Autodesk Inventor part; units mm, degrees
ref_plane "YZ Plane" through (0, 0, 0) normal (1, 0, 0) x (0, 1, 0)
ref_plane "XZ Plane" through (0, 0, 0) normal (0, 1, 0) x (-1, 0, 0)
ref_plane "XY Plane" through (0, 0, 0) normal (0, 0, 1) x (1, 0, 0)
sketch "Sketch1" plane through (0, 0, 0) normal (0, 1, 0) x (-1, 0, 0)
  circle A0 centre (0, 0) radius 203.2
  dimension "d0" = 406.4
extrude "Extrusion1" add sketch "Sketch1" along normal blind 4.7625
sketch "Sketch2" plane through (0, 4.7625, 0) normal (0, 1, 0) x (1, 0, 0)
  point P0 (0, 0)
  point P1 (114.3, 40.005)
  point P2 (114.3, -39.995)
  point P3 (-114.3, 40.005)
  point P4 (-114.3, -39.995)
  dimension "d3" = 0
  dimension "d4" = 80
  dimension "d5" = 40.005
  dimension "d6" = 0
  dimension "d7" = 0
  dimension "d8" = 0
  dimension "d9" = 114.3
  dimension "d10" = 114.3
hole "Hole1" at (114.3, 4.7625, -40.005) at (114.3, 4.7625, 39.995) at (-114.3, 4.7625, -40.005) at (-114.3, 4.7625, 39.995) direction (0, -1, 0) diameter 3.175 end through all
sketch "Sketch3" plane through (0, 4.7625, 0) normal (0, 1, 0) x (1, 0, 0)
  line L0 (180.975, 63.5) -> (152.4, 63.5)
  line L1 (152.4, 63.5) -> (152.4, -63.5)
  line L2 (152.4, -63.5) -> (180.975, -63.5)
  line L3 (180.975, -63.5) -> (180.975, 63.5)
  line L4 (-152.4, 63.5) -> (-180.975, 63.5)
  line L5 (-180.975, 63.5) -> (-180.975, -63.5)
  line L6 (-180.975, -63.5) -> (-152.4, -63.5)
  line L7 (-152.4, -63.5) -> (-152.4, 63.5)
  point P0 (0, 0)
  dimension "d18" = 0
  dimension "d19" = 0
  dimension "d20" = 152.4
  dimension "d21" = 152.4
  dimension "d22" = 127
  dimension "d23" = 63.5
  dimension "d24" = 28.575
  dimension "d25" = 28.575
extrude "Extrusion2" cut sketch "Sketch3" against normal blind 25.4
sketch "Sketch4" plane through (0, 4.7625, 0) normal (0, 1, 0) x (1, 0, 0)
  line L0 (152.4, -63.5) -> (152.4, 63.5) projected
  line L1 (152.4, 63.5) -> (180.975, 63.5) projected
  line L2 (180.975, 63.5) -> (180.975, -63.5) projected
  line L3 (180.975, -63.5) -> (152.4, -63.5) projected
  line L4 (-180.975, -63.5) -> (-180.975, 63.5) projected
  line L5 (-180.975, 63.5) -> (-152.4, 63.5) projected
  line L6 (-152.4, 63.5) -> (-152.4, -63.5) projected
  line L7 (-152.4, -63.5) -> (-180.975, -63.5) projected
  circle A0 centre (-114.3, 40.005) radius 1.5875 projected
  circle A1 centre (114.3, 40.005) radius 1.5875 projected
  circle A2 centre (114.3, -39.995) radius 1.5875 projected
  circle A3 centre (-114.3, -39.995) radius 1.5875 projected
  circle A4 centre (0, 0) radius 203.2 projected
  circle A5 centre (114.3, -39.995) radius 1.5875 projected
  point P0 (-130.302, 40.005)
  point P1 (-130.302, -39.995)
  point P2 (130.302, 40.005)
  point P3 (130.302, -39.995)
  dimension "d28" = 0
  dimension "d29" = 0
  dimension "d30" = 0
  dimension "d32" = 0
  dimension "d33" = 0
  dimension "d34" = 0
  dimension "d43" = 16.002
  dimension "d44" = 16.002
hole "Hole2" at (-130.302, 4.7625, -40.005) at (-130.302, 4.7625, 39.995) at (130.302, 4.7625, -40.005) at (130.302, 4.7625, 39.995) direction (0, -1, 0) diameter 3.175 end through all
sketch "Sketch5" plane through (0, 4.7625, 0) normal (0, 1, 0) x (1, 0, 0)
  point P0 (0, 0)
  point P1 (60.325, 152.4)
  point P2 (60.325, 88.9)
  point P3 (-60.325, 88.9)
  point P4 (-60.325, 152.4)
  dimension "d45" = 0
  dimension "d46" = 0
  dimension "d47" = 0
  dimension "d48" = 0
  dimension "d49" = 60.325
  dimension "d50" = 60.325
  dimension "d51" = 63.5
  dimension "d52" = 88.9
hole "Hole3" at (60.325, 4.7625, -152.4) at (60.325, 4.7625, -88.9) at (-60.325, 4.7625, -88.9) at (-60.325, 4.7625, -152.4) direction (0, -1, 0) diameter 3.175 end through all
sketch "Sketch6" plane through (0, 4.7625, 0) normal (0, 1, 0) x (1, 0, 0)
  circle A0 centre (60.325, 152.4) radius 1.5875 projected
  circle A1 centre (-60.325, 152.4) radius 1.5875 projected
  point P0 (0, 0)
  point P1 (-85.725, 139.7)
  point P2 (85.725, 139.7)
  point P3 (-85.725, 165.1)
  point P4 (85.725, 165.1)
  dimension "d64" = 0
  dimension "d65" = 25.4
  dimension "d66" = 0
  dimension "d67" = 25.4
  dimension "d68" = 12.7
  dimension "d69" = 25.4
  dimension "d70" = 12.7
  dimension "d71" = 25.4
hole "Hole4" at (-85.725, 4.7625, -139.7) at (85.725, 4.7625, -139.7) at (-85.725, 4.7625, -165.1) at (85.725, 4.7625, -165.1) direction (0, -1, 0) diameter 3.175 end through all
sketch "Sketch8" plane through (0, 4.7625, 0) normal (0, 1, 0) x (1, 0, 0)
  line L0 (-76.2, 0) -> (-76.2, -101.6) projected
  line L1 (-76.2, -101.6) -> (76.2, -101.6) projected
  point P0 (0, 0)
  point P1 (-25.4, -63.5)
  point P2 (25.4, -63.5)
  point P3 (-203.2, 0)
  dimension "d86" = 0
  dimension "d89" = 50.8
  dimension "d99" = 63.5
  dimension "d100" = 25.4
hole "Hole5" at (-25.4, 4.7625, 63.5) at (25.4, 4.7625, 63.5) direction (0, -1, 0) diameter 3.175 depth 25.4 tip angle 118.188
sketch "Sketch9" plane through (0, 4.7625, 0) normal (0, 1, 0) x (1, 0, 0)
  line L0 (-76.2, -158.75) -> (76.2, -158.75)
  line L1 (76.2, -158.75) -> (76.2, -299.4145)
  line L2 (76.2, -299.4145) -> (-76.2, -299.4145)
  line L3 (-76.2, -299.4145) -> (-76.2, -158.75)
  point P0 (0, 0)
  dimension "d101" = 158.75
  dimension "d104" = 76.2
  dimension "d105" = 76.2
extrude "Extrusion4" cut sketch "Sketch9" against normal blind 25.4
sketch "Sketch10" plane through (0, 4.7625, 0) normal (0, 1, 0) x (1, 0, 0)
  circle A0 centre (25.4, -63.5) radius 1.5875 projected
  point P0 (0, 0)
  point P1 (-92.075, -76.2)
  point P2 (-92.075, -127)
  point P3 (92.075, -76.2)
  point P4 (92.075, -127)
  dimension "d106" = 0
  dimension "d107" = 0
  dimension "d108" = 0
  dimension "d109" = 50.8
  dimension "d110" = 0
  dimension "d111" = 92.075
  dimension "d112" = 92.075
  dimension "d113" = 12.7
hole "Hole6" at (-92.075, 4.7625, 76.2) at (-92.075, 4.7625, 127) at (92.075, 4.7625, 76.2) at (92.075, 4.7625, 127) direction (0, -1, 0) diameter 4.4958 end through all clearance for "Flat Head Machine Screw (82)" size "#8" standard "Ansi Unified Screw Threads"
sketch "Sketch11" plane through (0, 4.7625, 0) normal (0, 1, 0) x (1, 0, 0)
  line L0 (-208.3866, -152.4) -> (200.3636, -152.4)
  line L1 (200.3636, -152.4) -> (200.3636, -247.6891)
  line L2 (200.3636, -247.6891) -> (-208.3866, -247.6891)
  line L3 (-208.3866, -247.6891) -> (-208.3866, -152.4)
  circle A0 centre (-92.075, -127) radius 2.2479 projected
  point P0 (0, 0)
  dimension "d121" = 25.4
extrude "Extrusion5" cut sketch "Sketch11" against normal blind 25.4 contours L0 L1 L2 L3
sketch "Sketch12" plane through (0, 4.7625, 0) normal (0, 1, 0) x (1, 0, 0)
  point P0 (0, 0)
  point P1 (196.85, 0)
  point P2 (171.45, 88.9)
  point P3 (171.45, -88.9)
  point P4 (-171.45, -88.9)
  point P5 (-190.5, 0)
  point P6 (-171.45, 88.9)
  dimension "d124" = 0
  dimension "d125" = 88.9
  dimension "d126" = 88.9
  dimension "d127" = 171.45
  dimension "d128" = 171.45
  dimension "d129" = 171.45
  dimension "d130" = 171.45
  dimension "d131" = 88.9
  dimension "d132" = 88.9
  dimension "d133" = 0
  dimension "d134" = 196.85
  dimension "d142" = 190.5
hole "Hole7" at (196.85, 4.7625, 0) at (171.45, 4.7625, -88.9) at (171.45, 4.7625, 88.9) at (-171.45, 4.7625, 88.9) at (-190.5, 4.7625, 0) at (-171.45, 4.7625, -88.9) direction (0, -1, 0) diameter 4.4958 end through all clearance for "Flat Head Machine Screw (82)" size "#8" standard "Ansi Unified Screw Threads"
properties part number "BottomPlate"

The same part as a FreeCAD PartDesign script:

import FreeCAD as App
import Part
import Sketcher
Q = App.Units.Quantity

doc = App.newDocument("Part")
params = doc.addObject("Spreadsheet::Sheet", "Params")
for row, (alias, value) in enumerate([
    ("sketch1_diameter", "16 in"),
    ("pad1_length", "0.1875 in"),
    ("sketch2_diameter", "0.125 in"),
    ("hole_diameter", "0.125 in"),
    ("sketch3_height", "5 in"),
    ("sketch3_width", "1.125 in"),
    ("pocket1_length", "1 in"),
    ("sketch4_diameter", "0.125 in"),
    ("hole2_diameter", "0.125 in"),
    ("sketch5_diameter", "0.125 in"),
    ("hole3_diameter", "0.125 in"),
    ("sketch6_diameter", "0.125 in"),
    ("hole4_diameter", "0.125 in"),
    ("sketch7_diameter", "0.125 in"),
    ("hole5_diameter", "0.125 in"),
    ("hole5_depth", "1 in"),
    ("pocket2_length", "1 in"),
    ("sketch9_diameter", "0.177 in"),
    ("hole6_diameter", "0.177 in"),
    ("pocket3_length", "1 in"),
    ("sketch11_diameter", "0.177 in"),
    ("hole7_diameter", "0.177 in"),
], start=1):
    params.set(f"A{row}", alias)
    params.set(f"B{row}", "=" + value)
    params.setAlias(f"B{row}", alias)

body = doc.addObject("PartDesign::Body", "Body")

sketch1 = body.newObject("Sketcher::SketchObject", "Sketch")
sketch1.AttachmentSupport = (doc.getObject("XZ_Plane"), [""])
sketch1.MapMode = "FlatFace"
sketch1.addGeometry(Part.Circle(App.Vector(0, 0, 0), App.Vector(0, 0, 1), 203), False)
sketch1.addConstraint(Sketcher.Constraint("Coincident", 0, 3, -1, 1))
sketch1.addConstraint(Sketcher.Constraint("Diameter", 0, Q("16 in")))
sketch1.setExpression("Constraints[1]", "Params.sketch1_diameter")
pad1 = body.newObject("PartDesign::Pad", "Pad")
pad1.Profile = sketch1
pad1.setExpression("Length", "Params.pad1_length")
pad1.Reversed = True

sketch2 = body.newObject("Sketcher::SketchObject", "Sketch001")
sketch2.AttachmentSupport = (doc.getObject("XZ_Plane"), [""])
sketch2.MapMode = "FlatFace"
sketch2.AttachmentOffset = App.Placement(App.Vector(0, 0, -0.1875 * 25.4), App.Rotation())
sketch2.addGeometry(Part.Circle(App.Vector(114.3, -40, 0), App.Vector(0, 0, 1), 1.6), False)
sketch2.addGeometry(Part.Circle(App.Vector(114.3, 40, 0), App.Vector(0, 0, 1), 1.6), False)
sketch2.addGeometry(Part.Circle(App.Vector(-114.3, -40, 0), App.Vector(0, 0, 1), 1.6), False)
sketch2.addGeometry(Part.Circle(App.Vector(-114.3, 40, 0), App.Vector(0, 0, 1), 1.6), False)
sketch2.addConstraint(Sketcher.Constraint("Equal", 0, 1))
sketch2.addConstraint(Sketcher.Constraint("Equal", 1, 2))
sketch2.addConstraint(Sketcher.Constraint("Equal", 2, 3))
sketch2.addConstraint(Sketcher.Constraint("Symmetric", 0, 3, 2, 3, -2))
sketch2.addConstraint(Sketcher.Constraint("Symmetric", 1, 3, 3, 3, -2))
sketch2.addConstraint(Sketcher.Constraint("Vertical", 0, 3, 1, 3))
sketch2.addConstraint(Sketcher.Constraint("Diameter", 0, Q("0.125 in")))
sketch2.addConstraint(Sketcher.Constraint("DistanceX", 2, 3, 0, 3, Q("9 in")))
sketch2.addConstraint(Sketcher.Constraint("DistanceY", 0, 3, -1, 1, Q("1.575 in")))
sketch2.addConstraint(Sketcher.Constraint("DistanceY", -1, 1, 1, 3, Q("1.5746 in")))
sketch2.setExpression("Constraints[6]", "Params.sketch2_diameter")
doc.recompute()
hole = body.newObject("PartDesign::Hole", "Hole")
hole.Profile = sketch2
hole.ThreadType = "None"
hole.setExpression("Diameter", "Params.hole_diameter")
hole.DepthType = "ThroughAll"
hole.Reversed = True

sketch3 = body.newObject("Sketcher::SketchObject", "Sketch002")
sketch3.AttachmentSupport = (doc.getObject("XZ_Plane"), [""])
sketch3.MapMode = "FlatFace"
sketch3.AttachmentOffset = App.Placement(App.Vector(0, 0, -0.1875 * 25.4), App.Rotation())
sketch3.addGeometry(Part.LineSegment(App.Vector(181, 64, 0), App.Vector(181, -64, 0)), False)
sketch3.addGeometry(Part.LineSegment(App.Vector(181, -64, 0), App.Vector(152, -64, 0)), False)
sketch3.addGeometry(Part.LineSegment(App.Vector(152, -64, 0), App.Vector(152, 64, 0)), False)
sketch3.addGeometry(Part.LineSegment(App.Vector(152, 64, 0), App.Vector(181, 64, 0)), False)
sketch3.addGeometry(Part.LineSegment(App.Vector(-152, 64, 0), App.Vector(-152, -64, 0)), False)
sketch3.addGeometry(Part.LineSegment(App.Vector(-152, -64, 0), App.Vector(-181, -64, 0)), False)
sketch3.addGeometry(Part.LineSegment(App.Vector(-181, -64, 0), App.Vector(-181, 64, 0)), False)
sketch3.addGeometry(Part.LineSegment(App.Vector(-181, 64, 0), App.Vector(-152, 64, 0)), False)
sketch3.addConstraint(Sketcher.Constraint("Coincident", 0, 2, 1, 1))
sketch3.addConstraint(Sketcher.Constraint("Coincident", 1, 2, 2, 1))
sketch3.addConstraint(Sketcher.Constraint("Coincident", 2, 2, 3, 1))
sketch3.addConstraint(Sketcher.Constraint("Coincident", 3, 2, 0, 1))
sketch3.addConstraint(Sketcher.Constraint("Coincident", 4, 2, 5, 1))
sketch3.addConstraint(Sketcher.Constraint("Coincident", 5, 2, 6, 1))
sketch3.addConstraint(Sketcher.Constraint("Coincident", 6, 2, 7, 1))
sketch3.addConstraint(Sketcher.Constraint("Coincident", 7, 2, 4, 1))
sketch3.addConstraint(Sketcher.Constraint("Vertical", 0))
sketch3.addConstraint(Sketcher.Constraint("Horizontal", 1))
sketch3.addConstraint(Sketcher.Constraint("Vertical", 2))
sketch3.addConstraint(Sketcher.Constraint("Horizontal", 3))
sketch3.addConstraint(Sketcher.Constraint("Vertical", 4))
sketch3.addConstraint(Sketcher.Constraint("Horizontal", 5))
sketch3.addConstraint(Sketcher.Constraint("Vertical", 6))
sketch3.addConstraint(Sketcher.Constraint("Horizontal", 7))
sketch3.addConstraint(Sketcher.Constraint("Symmetric", 2, 2, 4, 2, -1, 1))
sketch3.addConstraint(Sketcher.Constraint("Symmetric", 0, 2, 6, 2, -1, 1))
sketch3.addConstraint(Sketcher.Constraint("Horizontal", 1, 2, 4, 2))
sketch3.addConstraint(Sketcher.Constraint("DistanceY", 0, 2, 0, 1, Q("5 in")))
sketch3.addConstraint(Sketcher.Constraint("DistanceX", -1, 1, 1, 2, Q("6 in")))
sketch3.addConstraint(Sketcher.Constraint("DistanceX", 1, 2, 1, 1, Q("1.125 in")))
sketch3.setExpression("Constraints[19]", "Params.sketch3_height")
sketch3.setExpression("Constraints[21]", "Params.sketch3_width")
pocket1 = body.newObject("PartDesign::Pocket", "Pocket")
pocket1.Profile = sketch3
pocket1.setExpression("Length", "Params.pocket1_length")
pocket1.Reversed = True

sketch4 = body.newObject("Sketcher::SketchObject", "Sketch003")
sketch4.AttachmentSupport = (doc.getObject("XZ_Plane"), [""])
sketch4.MapMode = "FlatFace"
sketch4.AttachmentOffset = App.Placement(App.Vector(0, 0, -0.1875 * 25.4), App.Rotation())
sketch4.addGeometry(Part.Circle(App.Vector(-130.3, -40, 0), App.Vector(0, 0, 1), 1.6), False)
sketch4.addGeometry(Part.Circle(App.Vector(-130.3, 40, 0), App.Vector(0, 0, 1), 1.6), False)
sketch4.addGeometry(Part.Circle(App.Vector(130.3, -40, 0), App.Vector(0, 0, 1), 1.6), False)
sketch4.addGeometry(Part.Circle(App.Vector(130.3, 40, 0), App.Vector(0, 0, 1), 1.6), False)
sketch4.addConstraint(Sketcher.Constraint("Equal", 0, 1))
sketch4.addConstraint(Sketcher.Constraint("Equal", 1, 2))
sketch4.addConstraint(Sketcher.Constraint("Equal", 2, 3))
sketch4.addConstraint(Sketcher.Constraint("Symmetric", 0, 3, 2, 3, -2))
sketch4.addConstraint(Sketcher.Constraint("Symmetric", 1, 3, 3, 3, -2))
sketch4.addConstraint(Sketcher.Constraint("Vertical", 0, 3, 1, 3))
sketch4.addConstraint(Sketcher.Constraint("Diameter", 0, Q("0.125 in")))
sketch4.addConstraint(Sketcher.Constraint("DistanceX", 0, 3, -1, 1, Q("5.13 in")))
sketch4.addConstraint(Sketcher.Constraint("DistanceY", 0, 3, -1, 1, Q("1.575 in")))
sketch4.addConstraint(Sketcher.Constraint("DistanceY", -1, 1, 1, 3, Q("1.5746 in")))
sketch4.setExpression("Constraints[6]", "Params.sketch4_diameter")
doc.recompute()
hole2 = body.newObject("PartDesign::Hole", "Hole001")
hole2.Profile = sketch4
hole2.ThreadType = "None"
hole2.setExpression("Diameter", "Params.hole2_diameter")
hole2.DepthType = "ThroughAll"
hole2.Reversed = True

sketch5 = body.newObject("Sketcher::SketchObject", "Sketch004")
sketch5.AttachmentSupport = (doc.getObject("XZ_Plane"), [""])
sketch5.MapMode = "FlatFace"
sketch5.AttachmentOffset = App.Placement(App.Vector(0, 0, -0.1875 * 25.4), App.Rotation())
sketch5.addGeometry(Part.Circle(App.Vector(60.3, -152.4, 0), App.Vector(0, 0, 1), 1.6), False)
sketch5.addGeometry(Part.Circle(App.Vector(60.3, -88.9, 0), App.Vector(0, 0, 1), 1.6), False)
sketch5.addGeometry(Part.Circle(App.Vector(-60.3, -88.9, 0), App.Vector(0, 0, 1), 1.6), False)
sketch5.addGeometry(Part.Circle(App.Vector(-60.3, -152.4, 0), App.Vector(0, 0, 1), 1.6), False)
sketch5.addConstraint(Sketcher.Constraint("Equal", 0, 1))
sketch5.addConstraint(Sketcher.Constraint("Equal", 1, 2))
sketch5.addConstraint(Sketcher.Constraint("Equal", 2, 3))
sketch5.addConstraint(Sketcher.Constraint("Symmetric", 1, 3, 2, 3, -2))
sketch5.addConstraint(Sketcher.Constraint("Symmetric", 0, 3, 3, 3, -2))
sketch5.addConstraint(Sketcher.Constraint("Vertical", 0, 3, 1, 3))
sketch5.addConstraint(Sketcher.Constraint("Diameter", 0, Q("0.125 in")))
sketch5.addConstraint(Sketcher.Constraint("DistanceY", 0, 3, -1, 1, Q("6 in")))
sketch5.addConstraint(Sketcher.Constraint("DistanceY", 1, 3, -1, 1, Q("3.5 in")))
sketch5.addConstraint(Sketcher.Constraint("DistanceX", 2, 3, 1, 3, Q("4.75 in")))
sketch5.setExpression("Constraints[6]", "Params.sketch5_diameter")
doc.recompute()
hole3 = body.newObject("PartDesign::Hole", "Hole002")
hole3.Profile = sketch5
hole3.ThreadType = "None"
hole3.setExpression("Diameter", "Params.hole3_diameter")
hole3.DepthType = "ThroughAll"
hole3.Reversed = True

sketch6 = body.newObject("Sketcher::SketchObject", "Sketch005")
sketch6.AttachmentSupport = (doc.getObject("XZ_Plane"), [""])
sketch6.MapMode = "FlatFace"
sketch6.AttachmentOffset = App.Placement(App.Vector(0, 0, -0.1875 * 25.4), App.Rotation())
sketch6.addGeometry(Part.Circle(App.Vector(-85.7, -139.7, 0), App.Vector(0, 0, 1), 1.6), False)
sketch6.addGeometry(Part.Circle(App.Vector(85.7, -139.7, 0), App.Vector(0, 0, 1), 1.6), False)
sketch6.addGeometry(Part.Circle(App.Vector(-85.7, -165.1, 0), App.Vector(0, 0, 1), 1.6), False)
sketch6.addGeometry(Part.Circle(App.Vector(85.7, -165.1, 0), App.Vector(0, 0, 1), 1.6), False)
sketch6.addConstraint(Sketcher.Constraint("Equal", 0, 1))
sketch6.addConstraint(Sketcher.Constraint("Equal", 1, 2))
sketch6.addConstraint(Sketcher.Constraint("Equal", 2, 3))
sketch6.addConstraint(Sketcher.Constraint("Symmetric", 0, 3, 1, 3, -2))
sketch6.addConstraint(Sketcher.Constraint("Symmetric", 2, 3, 3, 3, -2))
sketch6.addConstraint(Sketcher.Constraint("Vertical", 0, 3, 2, 3))
sketch6.addConstraint(Sketcher.Constraint("Diameter", 0, Q("0.125 in")))
sketch6.addConstraint(Sketcher.Constraint("DistanceY", 2, 3, 0, 3, Q("1 in")))
sketch6.addConstraint(Sketcher.Constraint("DistanceY", 0, 3, -1, 1, Q("5.5 in")))
sketch6.addConstraint(Sketcher.Constraint("DistanceX", 0, 3, 1, 3, Q("6.75 in")))
sketch6.setExpression("Constraints[6]", "Params.sketch6_diameter")
doc.recompute()
hole4 = body.newObject("PartDesign::Hole", "Hole003")
hole4.Profile = sketch6
hole4.ThreadType = "None"
hole4.setExpression("Diameter", "Params.hole4_diameter")
hole4.DepthType = "ThroughAll"
hole4.Reversed = True

sketch7 = body.newObject("Sketcher::SketchObject", "Sketch006")
sketch7.AttachmentSupport = (doc.getObject("XZ_Plane"), [""])
sketch7.MapMode = "FlatFace"
sketch7.AttachmentOffset = App.Placement(App.Vector(0, 0, -0.1875 * 25.4), App.Rotation())
sketch7.addGeometry(Part.Circle(App.Vector(-25.4, 63.5, 0), App.Vector(0, 0, 1), 1.6), False)
sketch7.addGeometry(Part.Circle(App.Vector(25.4, 63.5, 0), App.Vector(0, 0, 1), 1.6), False)
sketch7.addConstraint(Sketcher.Constraint("Equal", 0, 1))
sketch7.addConstraint(Sketcher.Constraint("Symmetric", 0, 3, 1, 3, -2))
sketch7.addConstraint(Sketcher.Constraint("Diameter", 0, Q("0.125 in")))
sketch7.addConstraint(Sketcher.Constraint("DistanceX", 0, 3, -1, 1, Q("1 in")))
sketch7.addConstraint(Sketcher.Constraint("DistanceY", -1, 1, 0, 3, Q("2.5 in")))
sketch7.setExpression("Constraints[2]", "Params.sketch7_diameter")
doc.recompute()
hole5 = body.newObject("PartDesign::Hole", "Hole004")
hole5.Profile = sketch7
hole5.ThreadType = "None"
hole5.setExpression("Diameter", "Params.hole5_diameter")
hole5.DepthType = "Dimension"
hole5.setExpression("Depth", "Params.hole5_depth")
hole5.DrillPoint = "Angled"
hole5.DrillPointAngle = 118.188
hole5.Reversed = True

sketch8 = body.newObject("Sketcher::SketchObject", "Sketch007")
sketch8.AttachmentSupport = (doc.getObject("XZ_Plane"), [""])
sketch8.MapMode = "FlatFace"
sketch8.AttachmentOffset = App.Placement(App.Vector(0, 0, -0.1875 * 25.4), App.Rotation())
sketch8.addGeometry(Part.LineSegment(App.Vector(76, 159, 0), App.Vector(-76, 159, 0)), False)
sketch8.addGeometry(Part.LineSegment(App.Vector(-76, 159, 0), App.Vector(-76, 299, 0)), False)
sketch8.addGeometry(Part.LineSegment(App.Vector(-76, 299, 0), App.Vector(76, 299, 0)), False)
sketch8.addGeometry(Part.LineSegment(App.Vector(76, 299, 0), App.Vector(76, 159, 0)), False)
sketch8.addConstraint(Sketcher.Constraint("Coincident", 0, 2, 1, 1))
sketch8.addConstraint(Sketcher.Constraint("Coincident", 1, 2, 2, 1))
sketch8.addConstraint(Sketcher.Constraint("Coincident", 2, 2, 3, 1))
sketch8.addConstraint(Sketcher.Constraint("Coincident", 3, 2, 0, 1))
sketch8.addConstraint(Sketcher.Constraint("Horizontal", 0))
sketch8.addConstraint(Sketcher.Constraint("Vertical", 1))
sketch8.addConstraint(Sketcher.Constraint("Horizontal", 2))
sketch8.addConstraint(Sketcher.Constraint("Vertical", 3))
sketch8.addConstraint(Sketcher.Constraint("DistanceX", 0, 2, -1, 1, Q("3 in")))
sketch8.addConstraint(Sketcher.Constraint("DistanceX", -1, 1, 2, 2, Q("3 in")))
sketch8.addConstraint(Sketcher.Constraint("DistanceY", -1, 1, 0, 2, Q("6.25 in")))
sketch8.addConstraint(Sketcher.Constraint("DistanceY", 1, 1, 1, 2, Q("140.6645 mm")))
pocket2 = body.newObject("PartDesign::Pocket", "Pocket001")
pocket2.Profile = sketch8
pocket2.setExpression("Length", "Params.pocket2_length")
pocket2.Reversed = True

sketch9 = body.newObject("Sketcher::SketchObject", "Sketch008")
sketch9.AttachmentSupport = (doc.getObject("XZ_Plane"), [""])
sketch9.MapMode = "FlatFace"
sketch9.AttachmentOffset = App.Placement(App.Vector(0, 0, -0.1875 * 25.4), App.Rotation())
sketch9.addGeometry(Part.Circle(App.Vector(-92.1, 76.2, 0), App.Vector(0, 0, 1), 2.2), False)
sketch9.addGeometry(Part.Circle(App.Vector(-92.1, 127, 0), App.Vector(0, 0, 1), 2.2), False)
sketch9.addGeometry(Part.Circle(App.Vector(92.1, 76.2, 0), App.Vector(0, 0, 1), 2.2), False)
sketch9.addGeometry(Part.Circle(App.Vector(92.1, 127, 0), App.Vector(0, 0, 1), 2.2), False)
sketch9.addConstraint(Sketcher.Constraint("Equal", 0, 1))
sketch9.addConstraint(Sketcher.Constraint("Equal", 1, 2))
sketch9.addConstraint(Sketcher.Constraint("Equal", 2, 3))
sketch9.addConstraint(Sketcher.Constraint("Symmetric", 0, 3, 2, 3, -2))
sketch9.addConstraint(Sketcher.Constraint("Symmetric", 1, 3, 3, 3, -2))
sketch9.addConstraint(Sketcher.Constraint("Vertical", 0, 3, 1, 3))
sketch9.addConstraint(Sketcher.Constraint("Diameter", 0, Q("0.177 in")))
sketch9.addConstraint(Sketcher.Constraint("DistanceY", -1, 1, 0, 3, Q("3 in")))
sketch9.addConstraint(Sketcher.Constraint("DistanceY", -1, 1, 1, 3, Q("5 in")))
sketch9.addConstraint(Sketcher.Constraint("DistanceX", 0, 3, 2, 3, Q("7.25 in")))
sketch9.setExpression("Constraints[6]", "Params.sketch9_diameter")
doc.recompute()
hole6 = body.newObject("PartDesign::Hole", "Hole005")
hole6.Profile = sketch9
hole6.ThreadType = "None"
hole6.setExpression("Diameter", "Params.hole6_diameter")
hole6.DepthType = "ThroughAll"
hole6.Reversed = True

sketch10 = body.newObject("Sketcher::SketchObject", "Sketch009")
sketch10.AttachmentSupport = (doc.getObject("XZ_Plane"), [""])
sketch10.MapMode = "FlatFace"
sketch10.AttachmentOffset = App.Placement(App.Vector(0, 0, -0.1875 * 25.4), App.Rotation())
sketch10.addGeometry(Part.LineSegment(App.Vector(200, 152, 0), App.Vector(-208, 152, 0)), False)
sketch10.addGeometry(Part.LineSegment(App.Vector(-208, 152, 0), App.Vector(-208, 248, 0)), False)
sketch10.addGeometry(Part.LineSegment(App.Vector(-208, 248, 0), App.Vector(200, 248, 0)), False)
sketch10.addGeometry(Part.LineSegment(App.Vector(200, 248, 0), App.Vector(200, 152, 0)), False)
sketch10.addConstraint(Sketcher.Constraint("Coincident", 0, 2, 1, 1))
sketch10.addConstraint(Sketcher.Constraint("Coincident", 1, 2, 2, 1))
sketch10.addConstraint(Sketcher.Constraint("Coincident", 2, 2, 3, 1))
sketch10.addConstraint(Sketcher.Constraint("Coincident", 3, 2, 0, 1))
sketch10.addConstraint(Sketcher.Constraint("Horizontal", 0))
sketch10.addConstraint(Sketcher.Constraint("Vertical", 1))
sketch10.addConstraint(Sketcher.Constraint("Horizontal", 2))
sketch10.addConstraint(Sketcher.Constraint("Vertical", 3))
sketch10.addConstraint(Sketcher.Constraint("DistanceY", -1, 1, 0, 2, Q("6 in")))
sketch10.addConstraint(Sketcher.Constraint("DistanceX", 0, 2, 0, 1, Q("408.7502 mm")))
sketch10.addConstraint(Sketcher.Constraint("DistanceY", 1, 1, 1, 2, Q("95.289 mm")))
sketch10.addConstraint(Sketcher.Constraint("DistanceX", 0, 2, -1, 1, Q("8.2042 in")))
pocket3 = body.newObject("PartDesign::Pocket", "Pocket002")
pocket3.Profile = sketch10
pocket3.setExpression("Length", "Params.pocket3_length")
pocket3.Reversed = True

sketch11 = body.newObject("Sketcher::SketchObject", "Sketch010")
sketch11.AttachmentSupport = (doc.getObject("XZ_Plane"), [""])
sketch11.MapMode = "FlatFace"
sketch11.AttachmentOffset = App.Placement(App.Vector(0, 0, -0.1875 * 25.4), App.Rotation())
sketch11.addGeometry(Part.Circle(App.Vector(196.8, 0, 0), App.Vector(0, 0, 1), 2.2), False)
sketch11.addGeometry(Part.Circle(App.Vector(171.4, -88.9, 0), App.Vector(0, 0, 1), 2.2), False)
sketch11.addGeometry(Part.Circle(App.Vector(171.4, 88.9, 0), App.Vector(0, 0, 1), 2.2), False)
sketch11.addGeometry(Part.Circle(App.Vector(-171.4, 88.9, 0), App.Vector(0, 0, 1), 2.2), False)
sketch11.addGeometry(Part.Circle(App.Vector(-190.5, 0, 0), App.Vector(0, 0, 1), 2.2), False)
sketch11.addGeometry(Part.Circle(App.Vector(-171.4, -88.9, 0), App.Vector(0, 0, 1), 2.2), False)
sketch11.addConstraint(Sketcher.Constraint("Equal", 0, 1))
sketch11.addConstraint(Sketcher.Constraint("Equal", 1, 2))
sketch11.addConstraint(Sketcher.Constraint("Equal", 2, 3))
sketch11.addConstraint(Sketcher.Constraint("Equal", 3, 4))
sketch11.addConstraint(Sketcher.Constraint("Equal", 4, 5))
sketch11.addConstraint(Sketcher.Constraint("Symmetric", 1, 3, 3, 3, -1, 1))
sketch11.addConstraint(Sketcher.Constraint("Symmetric", 2, 3, 5, 3, -1, 1))
sketch11.addConstraint(Sketcher.Constraint("Symmetric", 2, 3, 3, 3, -2))
sketch11.addConstraint(Sketcher.Constraint("PointOnObject", 0, 3, -1))
sketch11.addConstraint(Sketcher.Constraint("PointOnObject", 4, 3, -1))
sketch11.addConstraint(Sketcher.Constraint("Diameter", 0, Q("0.177 in")))
sketch11.addConstraint(Sketcher.Constraint("DistanceX", 1, 3, 0, 3, Q("1 in")))
sketch11.addConstraint(Sketcher.Constraint("DistanceY", 1, 3, 2, 3, Q("7 in")))
sketch11.addConstraint(Sketcher.Constraint("DistanceX", 4, 3, -1, 1, Q("7.5 in")))
sketch11.addConstraint(Sketcher.Constraint("DistanceX", 3, 3, 2, 3, Q("13.5 in")))
sketch11.setExpression("Constraints[10]", "Params.sketch11_diameter")
doc.recompute()
hole7 = body.newObject("PartDesign::Hole", "Hole006")
hole7.Profile = sketch11
hole7.ThreadType = "None"
hole7.setExpression("Diameter", "Params.hole7_diameter")
hole7.DepthType = "ThroughAll"
hole7.Reversed = True

doc.recompute()
